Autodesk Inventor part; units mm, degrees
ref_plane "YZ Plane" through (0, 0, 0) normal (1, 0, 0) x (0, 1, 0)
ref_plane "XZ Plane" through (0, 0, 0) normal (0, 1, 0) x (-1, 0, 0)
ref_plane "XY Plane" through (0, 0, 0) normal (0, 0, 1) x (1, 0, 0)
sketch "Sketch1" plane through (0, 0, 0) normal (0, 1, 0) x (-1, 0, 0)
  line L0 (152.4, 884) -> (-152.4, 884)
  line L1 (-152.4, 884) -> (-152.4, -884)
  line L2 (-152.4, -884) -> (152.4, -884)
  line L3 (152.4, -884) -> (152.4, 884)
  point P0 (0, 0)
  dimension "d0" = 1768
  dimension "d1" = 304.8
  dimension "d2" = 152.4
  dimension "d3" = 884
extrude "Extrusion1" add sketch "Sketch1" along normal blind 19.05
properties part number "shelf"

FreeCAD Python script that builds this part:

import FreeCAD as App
import Part
import Sketcher

V = App.Vector
Q = App.Units.Quantity

doc = App.newDocument("Part")
params = doc.addObject("Spreadsheet::Sheet", "Params")
for row, (alias, value) in enumerate([
    ("sketch1_width", "12 in"),
    ("pad1_length", "0.75 in"),
], start=1):
    params.set(f"A{row}", alias)
    params.set(f"B{row}", "=" + value)
    params.setAlias(f"B{row}", alias)

body = doc.addObject("PartDesign::Body", "Body")

# Sketch on XZ plane
sketch1 = doc.addObject("Sketcher::SketchObject", "Sketch")
body.addObject(sketch1)
sketch1.AttachmentSupport = (doc.XZ_Plane, [""])
sketch1.MapMode = "FlatFace"
sketch1.addGeometry([
    Part.LineSegment(V(-152.4, -884, 0), V(-152.4, 884, 0)),
    Part.LineSegment(V(-152.4, 884, 0), V(152.4, 884, 0)),
    Part.LineSegment(V(152.4, 884, 0), V(152.4, -884, 0)),
    Part.LineSegment(V(152.4, -884, 0), V(-152.4, -884, 0)),
], False)
sketch1.addConstraint([
    Sketcher.Constraint("Coincident", 0, 2, 1, 1),
    Sketcher.Constraint("Coincident", 1, 2, 2, 1),
    Sketcher.Constraint("Coincident", 2, 2, 3, 1),
    Sketcher.Constraint("Coincident", 3, 2, 0, 1),
    Sketcher.Constraint("Vertical", 0),
    Sketcher.Constraint("Horizontal", 1),
    Sketcher.Constraint("Vertical", 2),
    Sketcher.Constraint("Horizontal", 3),
    Sketcher.Constraint("Symmetric", 0, 2, 2, 2, -1, 1),
    Sketcher.Constraint("DistanceX", 1, 1, 1, 2, Q("12 in")),
    Sketcher.Constraint("DistanceY", 0, 1, 0, 2, Q("69.6063 in")),
])
sketch1.setExpression("Constraints[9]", "Params.sketch1_width")
pad1 = doc.addObject("PartDesign::Pad", "Pad")
body.addObject(pad1)
pad1.Profile = sketch1
pad1.setExpression("Length", "Params.pad1_length")
pad1.Reversed = True

doc.recompute()
